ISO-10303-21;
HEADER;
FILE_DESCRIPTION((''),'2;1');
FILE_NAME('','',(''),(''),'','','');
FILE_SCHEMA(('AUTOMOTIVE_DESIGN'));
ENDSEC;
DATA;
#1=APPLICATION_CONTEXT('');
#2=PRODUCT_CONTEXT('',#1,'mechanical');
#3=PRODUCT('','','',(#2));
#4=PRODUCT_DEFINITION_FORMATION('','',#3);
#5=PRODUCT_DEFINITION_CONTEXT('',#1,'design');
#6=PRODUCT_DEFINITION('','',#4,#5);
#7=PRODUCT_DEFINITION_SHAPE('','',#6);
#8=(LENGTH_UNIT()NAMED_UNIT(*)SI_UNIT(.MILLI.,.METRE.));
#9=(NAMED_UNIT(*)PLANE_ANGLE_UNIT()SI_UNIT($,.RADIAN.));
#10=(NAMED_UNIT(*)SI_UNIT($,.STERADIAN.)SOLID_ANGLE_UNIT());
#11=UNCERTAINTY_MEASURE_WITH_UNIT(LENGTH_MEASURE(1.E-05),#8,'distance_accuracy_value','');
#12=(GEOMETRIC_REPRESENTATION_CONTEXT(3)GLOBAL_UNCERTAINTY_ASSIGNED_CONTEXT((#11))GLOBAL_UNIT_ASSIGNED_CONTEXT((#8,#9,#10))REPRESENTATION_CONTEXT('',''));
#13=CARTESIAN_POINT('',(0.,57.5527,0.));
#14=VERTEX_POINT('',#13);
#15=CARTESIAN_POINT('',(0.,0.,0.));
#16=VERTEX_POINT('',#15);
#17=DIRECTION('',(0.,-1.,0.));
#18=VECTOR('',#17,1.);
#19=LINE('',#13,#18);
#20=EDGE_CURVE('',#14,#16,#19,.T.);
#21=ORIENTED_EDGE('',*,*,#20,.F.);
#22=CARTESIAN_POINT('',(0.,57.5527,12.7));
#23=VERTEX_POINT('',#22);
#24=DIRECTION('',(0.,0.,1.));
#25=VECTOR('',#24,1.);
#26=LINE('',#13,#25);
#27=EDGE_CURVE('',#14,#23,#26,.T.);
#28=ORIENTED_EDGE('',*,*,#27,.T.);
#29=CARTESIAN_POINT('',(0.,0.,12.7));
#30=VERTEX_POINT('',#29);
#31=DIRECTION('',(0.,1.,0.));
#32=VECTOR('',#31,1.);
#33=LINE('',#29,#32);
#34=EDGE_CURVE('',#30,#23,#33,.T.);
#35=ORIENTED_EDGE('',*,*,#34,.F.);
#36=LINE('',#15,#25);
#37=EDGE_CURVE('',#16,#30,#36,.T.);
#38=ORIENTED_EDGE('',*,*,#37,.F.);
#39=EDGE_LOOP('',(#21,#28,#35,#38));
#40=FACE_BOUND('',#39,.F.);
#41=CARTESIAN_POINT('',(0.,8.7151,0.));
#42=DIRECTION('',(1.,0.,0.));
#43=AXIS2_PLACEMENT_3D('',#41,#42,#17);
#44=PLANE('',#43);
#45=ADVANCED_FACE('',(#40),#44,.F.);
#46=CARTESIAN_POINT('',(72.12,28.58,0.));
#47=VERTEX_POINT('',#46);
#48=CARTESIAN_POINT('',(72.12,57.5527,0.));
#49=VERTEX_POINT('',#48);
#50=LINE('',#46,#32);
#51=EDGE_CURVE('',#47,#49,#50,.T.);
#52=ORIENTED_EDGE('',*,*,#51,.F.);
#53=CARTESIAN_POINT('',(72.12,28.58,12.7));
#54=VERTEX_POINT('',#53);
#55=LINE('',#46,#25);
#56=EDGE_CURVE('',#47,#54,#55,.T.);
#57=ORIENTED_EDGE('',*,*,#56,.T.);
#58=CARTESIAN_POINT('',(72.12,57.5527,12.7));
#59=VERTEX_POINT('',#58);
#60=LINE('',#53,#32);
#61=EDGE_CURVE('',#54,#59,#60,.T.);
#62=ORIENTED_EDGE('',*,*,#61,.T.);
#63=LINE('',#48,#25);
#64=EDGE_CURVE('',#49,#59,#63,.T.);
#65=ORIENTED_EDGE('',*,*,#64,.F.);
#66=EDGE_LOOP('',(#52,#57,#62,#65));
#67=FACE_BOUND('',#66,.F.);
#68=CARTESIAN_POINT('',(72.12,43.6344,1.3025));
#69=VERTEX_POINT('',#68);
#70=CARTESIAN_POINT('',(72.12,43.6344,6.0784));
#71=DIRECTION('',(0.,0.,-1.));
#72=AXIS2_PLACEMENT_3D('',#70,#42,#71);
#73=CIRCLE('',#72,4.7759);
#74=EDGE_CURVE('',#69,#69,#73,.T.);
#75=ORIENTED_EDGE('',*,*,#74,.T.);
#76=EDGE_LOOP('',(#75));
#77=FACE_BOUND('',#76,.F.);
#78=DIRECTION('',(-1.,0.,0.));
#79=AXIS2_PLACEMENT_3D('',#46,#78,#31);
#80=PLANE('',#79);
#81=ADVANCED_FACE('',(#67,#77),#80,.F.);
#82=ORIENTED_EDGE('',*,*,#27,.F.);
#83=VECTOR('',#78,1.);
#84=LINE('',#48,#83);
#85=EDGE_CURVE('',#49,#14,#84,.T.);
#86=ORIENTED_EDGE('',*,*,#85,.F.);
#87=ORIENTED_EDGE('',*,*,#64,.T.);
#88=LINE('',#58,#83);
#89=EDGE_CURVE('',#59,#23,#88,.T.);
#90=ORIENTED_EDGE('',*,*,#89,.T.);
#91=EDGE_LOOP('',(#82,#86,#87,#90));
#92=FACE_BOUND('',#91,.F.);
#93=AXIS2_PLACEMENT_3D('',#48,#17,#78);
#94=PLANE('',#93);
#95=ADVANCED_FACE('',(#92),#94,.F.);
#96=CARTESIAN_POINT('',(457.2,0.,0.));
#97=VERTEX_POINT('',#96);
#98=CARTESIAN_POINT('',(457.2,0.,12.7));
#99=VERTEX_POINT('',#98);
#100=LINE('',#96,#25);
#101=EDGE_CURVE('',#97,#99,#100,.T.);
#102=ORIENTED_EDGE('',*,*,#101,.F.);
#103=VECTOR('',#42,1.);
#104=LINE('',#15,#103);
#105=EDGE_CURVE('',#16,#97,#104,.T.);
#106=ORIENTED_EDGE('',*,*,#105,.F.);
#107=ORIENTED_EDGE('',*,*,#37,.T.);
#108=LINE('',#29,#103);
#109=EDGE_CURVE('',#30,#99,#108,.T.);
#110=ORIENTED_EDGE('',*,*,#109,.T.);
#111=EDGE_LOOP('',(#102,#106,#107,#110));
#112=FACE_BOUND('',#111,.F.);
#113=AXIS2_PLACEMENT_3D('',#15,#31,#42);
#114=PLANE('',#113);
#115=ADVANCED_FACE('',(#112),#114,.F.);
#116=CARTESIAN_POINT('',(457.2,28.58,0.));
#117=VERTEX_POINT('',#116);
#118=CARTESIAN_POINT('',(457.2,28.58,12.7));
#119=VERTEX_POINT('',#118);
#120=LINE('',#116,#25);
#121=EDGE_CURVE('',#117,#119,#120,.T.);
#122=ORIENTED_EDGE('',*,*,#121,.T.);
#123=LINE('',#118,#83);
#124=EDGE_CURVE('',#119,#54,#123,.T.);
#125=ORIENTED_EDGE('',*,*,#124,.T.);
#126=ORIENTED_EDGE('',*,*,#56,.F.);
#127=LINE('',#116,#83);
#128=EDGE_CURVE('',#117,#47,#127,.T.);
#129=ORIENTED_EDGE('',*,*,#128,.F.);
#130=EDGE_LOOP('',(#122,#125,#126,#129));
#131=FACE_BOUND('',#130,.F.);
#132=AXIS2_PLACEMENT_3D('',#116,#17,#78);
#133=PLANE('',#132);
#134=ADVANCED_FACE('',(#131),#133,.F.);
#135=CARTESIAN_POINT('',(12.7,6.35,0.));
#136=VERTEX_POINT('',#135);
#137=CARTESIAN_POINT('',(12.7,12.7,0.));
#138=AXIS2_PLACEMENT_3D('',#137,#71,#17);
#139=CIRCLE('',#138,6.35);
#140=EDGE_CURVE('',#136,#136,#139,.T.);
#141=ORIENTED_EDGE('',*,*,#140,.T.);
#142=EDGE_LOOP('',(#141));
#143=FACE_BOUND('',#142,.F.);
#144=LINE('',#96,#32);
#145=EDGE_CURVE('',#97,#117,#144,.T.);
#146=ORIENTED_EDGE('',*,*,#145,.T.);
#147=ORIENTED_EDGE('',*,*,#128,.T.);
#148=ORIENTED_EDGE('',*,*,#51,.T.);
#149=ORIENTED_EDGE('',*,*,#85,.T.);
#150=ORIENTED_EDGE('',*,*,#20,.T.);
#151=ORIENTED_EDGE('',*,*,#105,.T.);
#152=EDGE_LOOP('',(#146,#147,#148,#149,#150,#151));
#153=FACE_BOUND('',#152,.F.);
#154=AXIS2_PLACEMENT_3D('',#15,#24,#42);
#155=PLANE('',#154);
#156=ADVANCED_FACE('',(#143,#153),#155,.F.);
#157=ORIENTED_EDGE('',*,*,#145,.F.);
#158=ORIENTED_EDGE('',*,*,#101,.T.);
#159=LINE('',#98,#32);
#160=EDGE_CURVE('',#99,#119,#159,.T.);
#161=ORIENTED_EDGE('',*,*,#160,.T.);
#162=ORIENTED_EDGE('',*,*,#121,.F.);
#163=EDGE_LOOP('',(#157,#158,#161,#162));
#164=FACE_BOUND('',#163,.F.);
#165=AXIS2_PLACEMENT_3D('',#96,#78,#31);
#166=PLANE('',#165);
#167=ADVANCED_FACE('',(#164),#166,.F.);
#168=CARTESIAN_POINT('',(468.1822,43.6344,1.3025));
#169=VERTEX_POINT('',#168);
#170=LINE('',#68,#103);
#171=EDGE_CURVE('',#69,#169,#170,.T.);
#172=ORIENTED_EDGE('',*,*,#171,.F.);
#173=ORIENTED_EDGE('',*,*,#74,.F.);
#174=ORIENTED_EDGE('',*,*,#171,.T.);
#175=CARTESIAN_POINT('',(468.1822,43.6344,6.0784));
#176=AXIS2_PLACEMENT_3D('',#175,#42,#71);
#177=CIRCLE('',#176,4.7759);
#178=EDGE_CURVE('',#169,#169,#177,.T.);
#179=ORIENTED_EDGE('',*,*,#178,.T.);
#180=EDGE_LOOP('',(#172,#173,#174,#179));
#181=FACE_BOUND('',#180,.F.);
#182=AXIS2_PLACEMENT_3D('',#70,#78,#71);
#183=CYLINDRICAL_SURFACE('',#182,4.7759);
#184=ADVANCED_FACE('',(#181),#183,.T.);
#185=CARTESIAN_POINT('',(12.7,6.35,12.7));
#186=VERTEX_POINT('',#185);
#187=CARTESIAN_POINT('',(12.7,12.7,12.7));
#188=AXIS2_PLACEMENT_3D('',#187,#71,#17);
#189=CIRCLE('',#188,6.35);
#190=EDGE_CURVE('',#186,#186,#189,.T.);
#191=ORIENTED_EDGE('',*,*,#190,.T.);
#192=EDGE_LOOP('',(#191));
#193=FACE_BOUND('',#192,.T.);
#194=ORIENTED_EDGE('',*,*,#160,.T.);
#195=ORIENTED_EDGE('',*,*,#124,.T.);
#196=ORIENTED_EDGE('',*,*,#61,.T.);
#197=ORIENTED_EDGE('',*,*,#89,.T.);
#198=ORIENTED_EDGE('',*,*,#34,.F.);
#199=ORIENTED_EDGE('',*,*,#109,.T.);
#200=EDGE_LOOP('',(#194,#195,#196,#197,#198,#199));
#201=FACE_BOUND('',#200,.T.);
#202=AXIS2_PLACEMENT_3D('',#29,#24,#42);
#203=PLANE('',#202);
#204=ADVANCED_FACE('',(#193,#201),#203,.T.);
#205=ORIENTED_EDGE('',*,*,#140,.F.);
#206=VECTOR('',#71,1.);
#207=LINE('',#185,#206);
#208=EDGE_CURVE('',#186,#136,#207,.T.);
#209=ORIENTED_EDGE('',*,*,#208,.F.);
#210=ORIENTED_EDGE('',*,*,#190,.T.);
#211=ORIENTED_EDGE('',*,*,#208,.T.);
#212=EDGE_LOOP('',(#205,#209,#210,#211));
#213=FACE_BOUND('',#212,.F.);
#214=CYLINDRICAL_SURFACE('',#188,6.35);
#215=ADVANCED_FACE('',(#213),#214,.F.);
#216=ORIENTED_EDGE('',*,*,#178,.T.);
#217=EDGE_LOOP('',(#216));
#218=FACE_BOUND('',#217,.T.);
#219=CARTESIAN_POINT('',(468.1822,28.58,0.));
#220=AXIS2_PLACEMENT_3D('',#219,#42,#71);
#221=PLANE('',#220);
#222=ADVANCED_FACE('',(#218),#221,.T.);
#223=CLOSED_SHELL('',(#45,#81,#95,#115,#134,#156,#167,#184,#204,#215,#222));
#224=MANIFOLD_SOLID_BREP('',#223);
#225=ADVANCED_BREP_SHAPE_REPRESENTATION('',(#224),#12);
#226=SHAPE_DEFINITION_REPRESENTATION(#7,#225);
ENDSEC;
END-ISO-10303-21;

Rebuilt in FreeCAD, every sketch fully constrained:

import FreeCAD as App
import Part
import Sketcher
from FreeCAD import Vector
Q = App.Units.Quantity


def add_polygon(sketch, points):
    """Adds a closed chain of lines whose ends are joined by coincident constraints."""
    first, n = sketch.GeometryCount, len(points)
    for a, b in zip(points, points[1:] + points[:1]):
        sketch.addGeometry(Part.LineSegment(App.Vector(*a, 0), App.Vector(*b, 0)), False)
    for i in range(n):
        sketch.addConstraint(Sketcher.Constraint("Coincident", first + i, 2, first + (i + 1) % n, 1))

doc = App.newDocument("Part")
body = doc.addObject("PartDesign::Body", "Body")

# Sketch on XY plane
sketch1 = body.newObject("Sketcher::SketchObject", "Sketch")
sketch1.AttachmentSupport = (doc.getObject("XY_Plane"), [""])
sketch1.MapMode = "FlatFace"
add_polygon(sketch1, [(0, 57.5527), (0, 0), (457.2, 0), (457.2, 28.58), (72.12, 28.58), (72.12, 57.5527)])  # lines 0-5
sketch1.addConstraint([
    Sketcher.Constraint("Vertical", 0),
    Sketcher.Constraint("Horizontal", 1),
    Sketcher.Constraint("Vertical", 2),
    Sketcher.Constraint("Horizontal", 3),
    Sketcher.Constraint("Vertical", 4),
    Sketcher.Constraint("Horizontal", 5),
    Sketcher.Constraint("Coincident", 0, 2, -1, 1),
    Sketcher.Constraint("DistanceX", 1, 1, 1, 2, Q("18 in")),
    Sketcher.Constraint("DistanceY", 2, 1, 2, 2, Q("1.1252 in")),
    Sketcher.Constraint("DistanceX", 5, 2, 5, 1, 72.12),
    Sketcher.Constraint("DistanceY", 0, 2, 0, 1, 57.5527),
])
pad1 = body.newObject("PartDesign::Pad", "Pad")
pad1.Profile = sketch1
pad1.Length = Q("0.5 in")

# Sketch on YZ plane
sketch2 = body.newObject("Sketcher::SketchObject", "Sketch001")
sketch2.AttachmentSupport = (doc.getObject("YZ_Plane"), [""])
sketch2.MapMode = "FlatFace"
sketch2.AttachmentOffset = App.Placement(Vector(0, 0, 72.12), App.Rotation())
sketch2.addGeometry(Part.Circle(Vector(43.6344, 6.0784, 0), Vector(0, 0, 1), 4.7759), False)
sketch2.addConstraint([
    Sketcher.Constraint("Diameter", 0, 9.5518),
    Sketcher.Constraint("DistanceX", -1, 1, 0, 3, Q("1.7179 in")),
    Sketcher.Constraint("DistanceY", -1, 1, 0, 3, Q("0.2393 in")),
])
pad2 = body.newObject("PartDesign::Pad", "Pad001")
pad2.Profile = sketch2
pad2.Length = Q("15.593 in")

# Sketch on XY plane
sketch3 = body.newObject("Sketcher::SketchObject", "Sketch002")
sketch3.AttachmentSupport = (doc.getObject("XY_Plane"), [""])
sketch3.MapMode = "FlatFace"
sketch3.AttachmentOffset = App.Placement(Vector(0, 0, 0.5 * 25.4), App.Rotation())
sketch3.addGeometry(Part.Circle(Vector(12.7, 12.7, 0), Vector(0, 0, 1), 6.35), False)
sketch3.addConstraint([
    Sketcher.Constraint("Diameter", 0, Q("0.5 in")),
    Sketcher.Constraint("DistanceX", -1, 1, 0, 3, Q("0.5 in")),
    Sketcher.Constraint("DistanceY", -1, 1, 0, 3, Q("0.5 in")),
])
doc.recompute()
hole = body.newObject("PartDesign::Hole", "Hole")
hole.Profile = sketch3
hole.ThreadType = "None"
hole.Diameter = Q("0.5 in")
hole.DepthType = "ThroughAll"

doc.recompute()
